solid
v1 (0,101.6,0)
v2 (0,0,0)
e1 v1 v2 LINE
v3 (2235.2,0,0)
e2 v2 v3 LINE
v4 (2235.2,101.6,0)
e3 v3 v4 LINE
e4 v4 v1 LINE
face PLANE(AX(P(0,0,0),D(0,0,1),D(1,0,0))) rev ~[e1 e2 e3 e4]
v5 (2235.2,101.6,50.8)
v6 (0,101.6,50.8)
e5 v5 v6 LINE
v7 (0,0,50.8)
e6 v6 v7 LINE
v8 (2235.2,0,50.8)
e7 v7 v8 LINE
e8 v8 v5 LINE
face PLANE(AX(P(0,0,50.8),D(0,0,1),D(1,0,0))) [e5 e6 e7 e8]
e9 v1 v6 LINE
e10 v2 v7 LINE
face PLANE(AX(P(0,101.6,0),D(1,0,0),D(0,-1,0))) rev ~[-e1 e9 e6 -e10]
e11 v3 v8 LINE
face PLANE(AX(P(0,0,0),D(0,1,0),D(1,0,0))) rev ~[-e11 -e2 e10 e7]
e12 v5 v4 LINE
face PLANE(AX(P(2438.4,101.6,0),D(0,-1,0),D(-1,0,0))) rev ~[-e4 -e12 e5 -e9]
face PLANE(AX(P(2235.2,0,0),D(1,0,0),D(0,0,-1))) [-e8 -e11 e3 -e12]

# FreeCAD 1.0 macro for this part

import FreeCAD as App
import Part
import Sketcher
from FreeCAD import Vector
Q = App.Units.Quantity

doc = App.newDocument("Part")
body = doc.addObject("PartDesign::Body", "Body")

sketch1 = body.newObject("Sketcher::SketchObject", "Sketch")
sketch1.AttachmentSupport = (doc.getObject("XY_Plane"), [""])
sketch1.MapMode = "FlatFace"
sketch1.addGeometry(Part.LineSegment(Vector(0, 102, 0), Vector(0, 0, 0)), False)
sketch1.addGeometry(Part.LineSegment(Vector(0, 0, 0), Vector(2438, 0, 0)), False)
sketch1.addGeometry(Part.LineSegment(Vector(2438, 0, 0), Vector(2438, 102, 0)), False)
sketch1.addGeometry(Part.LineSegment(Vector(2438, 102, 0), Vector(0, 102, 0)), False)
sketch1.addConstraint(Sketcher.Constraint("Coincident", 0, 2, 1, 1))
sketch1.addConstraint(Sketcher.Constraint("Coincident", 1, 2, 2, 1))
sketch1.addConstraint(Sketcher.Constraint("Coincident", 2, 2, 3, 1))
sketch1.addConstraint(Sketcher.Constraint("Coincident", 3, 2, 0, 1))
sketch1.addConstraint(Sketcher.Constraint("Vertical", 0))
sketch1.addConstraint(Sketcher.Constraint("Horizontal", 1))
sketch1.addConstraint(Sketcher.Constraint("Vertical", 2))
sketch1.addConstraint(Sketcher.Constraint("Horizontal", 3))
sketch1.addConstraint(Sketcher.Constraint("Coincident", 0, 2, -1, 1))
sketch1.addConstraint(Sketcher.Constraint("DistanceX", 1, 1, 1, 2, Q("96 in")))
sketch1.addConstraint(Sketcher.Constraint("DistanceY", 0, 2, 0, 1, Q("4 in")))
pad1 = body.newObject("PartDesign::Pad", "Pad")
pad1.Profile = sketch1
pad1.Length = Q("2 in")

sketch2 = body.newObject("Sketcher::SketchObject", "Sketch001")
sketch2.AttachmentSupport = (doc.getObject("YZ_Plane"), [""])
sketch2.MapMode = "FlatFace"
sketch2.AttachmentOffset = App.Placement(Vector(0, 0, 96 * 25.4), App.Rotation())
sketch2.addGeometry(Part.LineSegment(Vector(0, 51, 0), Vector(0, 0, 0)), False)
sketch2.addGeometry(Part.LineSegment(Vector(0, 0, 0), Vector(102, 0, 0)), False)
sketch2.addGeometry(Part.LineSegment(Vector(102, 0, 0), Vector(102, 51, 0)), False)
sketch2.addGeometry(Part.LineSegment(Vector(102, 51, 0), Vector(0, 51, 0)), False)
sketch2.addConstraint(Sketcher.Constraint("Coincident", 0, 2, 1, 1))
sketch2.addConstraint(Sketcher.Constraint("Coincident", 1, 2, 2, 1))
sketch2.addConstraint(Sketcher.Constraint("Coincident", 2, 2, 3, 1))
sketch2.addConstraint(Sketcher.Constraint("Coincident", 3, 2, 0, 1))
sketch2.addConstraint(Sketcher.Constraint("Vertical", 0))
sketch2.addConstraint(Sketcher.Constraint("Horizontal", 1))
sketch2.addConstraint(Sketcher.Constraint("Vertical", 2))
sketch2.addConstraint(Sketcher.Constraint("Horizontal", 3))
sketch2.addConstraint(Sketcher.Constraint("Coincident", 0, 2, -1, 1))
sketch2.addConstraint(Sketcher.Constraint("DistanceX", 1, 1, 1, 2, Q("4 in")))
sketch2.addConstraint(Sketcher.Constraint("DistanceY", 0, 2, 0, 1, Q("2 in")))
pocket1 = body.newObject("PartDesign::Pocket", "Pocket")
pocket1.Profile = sketch2
pocket1.Length = Q("8 in")

doc.recompute()
